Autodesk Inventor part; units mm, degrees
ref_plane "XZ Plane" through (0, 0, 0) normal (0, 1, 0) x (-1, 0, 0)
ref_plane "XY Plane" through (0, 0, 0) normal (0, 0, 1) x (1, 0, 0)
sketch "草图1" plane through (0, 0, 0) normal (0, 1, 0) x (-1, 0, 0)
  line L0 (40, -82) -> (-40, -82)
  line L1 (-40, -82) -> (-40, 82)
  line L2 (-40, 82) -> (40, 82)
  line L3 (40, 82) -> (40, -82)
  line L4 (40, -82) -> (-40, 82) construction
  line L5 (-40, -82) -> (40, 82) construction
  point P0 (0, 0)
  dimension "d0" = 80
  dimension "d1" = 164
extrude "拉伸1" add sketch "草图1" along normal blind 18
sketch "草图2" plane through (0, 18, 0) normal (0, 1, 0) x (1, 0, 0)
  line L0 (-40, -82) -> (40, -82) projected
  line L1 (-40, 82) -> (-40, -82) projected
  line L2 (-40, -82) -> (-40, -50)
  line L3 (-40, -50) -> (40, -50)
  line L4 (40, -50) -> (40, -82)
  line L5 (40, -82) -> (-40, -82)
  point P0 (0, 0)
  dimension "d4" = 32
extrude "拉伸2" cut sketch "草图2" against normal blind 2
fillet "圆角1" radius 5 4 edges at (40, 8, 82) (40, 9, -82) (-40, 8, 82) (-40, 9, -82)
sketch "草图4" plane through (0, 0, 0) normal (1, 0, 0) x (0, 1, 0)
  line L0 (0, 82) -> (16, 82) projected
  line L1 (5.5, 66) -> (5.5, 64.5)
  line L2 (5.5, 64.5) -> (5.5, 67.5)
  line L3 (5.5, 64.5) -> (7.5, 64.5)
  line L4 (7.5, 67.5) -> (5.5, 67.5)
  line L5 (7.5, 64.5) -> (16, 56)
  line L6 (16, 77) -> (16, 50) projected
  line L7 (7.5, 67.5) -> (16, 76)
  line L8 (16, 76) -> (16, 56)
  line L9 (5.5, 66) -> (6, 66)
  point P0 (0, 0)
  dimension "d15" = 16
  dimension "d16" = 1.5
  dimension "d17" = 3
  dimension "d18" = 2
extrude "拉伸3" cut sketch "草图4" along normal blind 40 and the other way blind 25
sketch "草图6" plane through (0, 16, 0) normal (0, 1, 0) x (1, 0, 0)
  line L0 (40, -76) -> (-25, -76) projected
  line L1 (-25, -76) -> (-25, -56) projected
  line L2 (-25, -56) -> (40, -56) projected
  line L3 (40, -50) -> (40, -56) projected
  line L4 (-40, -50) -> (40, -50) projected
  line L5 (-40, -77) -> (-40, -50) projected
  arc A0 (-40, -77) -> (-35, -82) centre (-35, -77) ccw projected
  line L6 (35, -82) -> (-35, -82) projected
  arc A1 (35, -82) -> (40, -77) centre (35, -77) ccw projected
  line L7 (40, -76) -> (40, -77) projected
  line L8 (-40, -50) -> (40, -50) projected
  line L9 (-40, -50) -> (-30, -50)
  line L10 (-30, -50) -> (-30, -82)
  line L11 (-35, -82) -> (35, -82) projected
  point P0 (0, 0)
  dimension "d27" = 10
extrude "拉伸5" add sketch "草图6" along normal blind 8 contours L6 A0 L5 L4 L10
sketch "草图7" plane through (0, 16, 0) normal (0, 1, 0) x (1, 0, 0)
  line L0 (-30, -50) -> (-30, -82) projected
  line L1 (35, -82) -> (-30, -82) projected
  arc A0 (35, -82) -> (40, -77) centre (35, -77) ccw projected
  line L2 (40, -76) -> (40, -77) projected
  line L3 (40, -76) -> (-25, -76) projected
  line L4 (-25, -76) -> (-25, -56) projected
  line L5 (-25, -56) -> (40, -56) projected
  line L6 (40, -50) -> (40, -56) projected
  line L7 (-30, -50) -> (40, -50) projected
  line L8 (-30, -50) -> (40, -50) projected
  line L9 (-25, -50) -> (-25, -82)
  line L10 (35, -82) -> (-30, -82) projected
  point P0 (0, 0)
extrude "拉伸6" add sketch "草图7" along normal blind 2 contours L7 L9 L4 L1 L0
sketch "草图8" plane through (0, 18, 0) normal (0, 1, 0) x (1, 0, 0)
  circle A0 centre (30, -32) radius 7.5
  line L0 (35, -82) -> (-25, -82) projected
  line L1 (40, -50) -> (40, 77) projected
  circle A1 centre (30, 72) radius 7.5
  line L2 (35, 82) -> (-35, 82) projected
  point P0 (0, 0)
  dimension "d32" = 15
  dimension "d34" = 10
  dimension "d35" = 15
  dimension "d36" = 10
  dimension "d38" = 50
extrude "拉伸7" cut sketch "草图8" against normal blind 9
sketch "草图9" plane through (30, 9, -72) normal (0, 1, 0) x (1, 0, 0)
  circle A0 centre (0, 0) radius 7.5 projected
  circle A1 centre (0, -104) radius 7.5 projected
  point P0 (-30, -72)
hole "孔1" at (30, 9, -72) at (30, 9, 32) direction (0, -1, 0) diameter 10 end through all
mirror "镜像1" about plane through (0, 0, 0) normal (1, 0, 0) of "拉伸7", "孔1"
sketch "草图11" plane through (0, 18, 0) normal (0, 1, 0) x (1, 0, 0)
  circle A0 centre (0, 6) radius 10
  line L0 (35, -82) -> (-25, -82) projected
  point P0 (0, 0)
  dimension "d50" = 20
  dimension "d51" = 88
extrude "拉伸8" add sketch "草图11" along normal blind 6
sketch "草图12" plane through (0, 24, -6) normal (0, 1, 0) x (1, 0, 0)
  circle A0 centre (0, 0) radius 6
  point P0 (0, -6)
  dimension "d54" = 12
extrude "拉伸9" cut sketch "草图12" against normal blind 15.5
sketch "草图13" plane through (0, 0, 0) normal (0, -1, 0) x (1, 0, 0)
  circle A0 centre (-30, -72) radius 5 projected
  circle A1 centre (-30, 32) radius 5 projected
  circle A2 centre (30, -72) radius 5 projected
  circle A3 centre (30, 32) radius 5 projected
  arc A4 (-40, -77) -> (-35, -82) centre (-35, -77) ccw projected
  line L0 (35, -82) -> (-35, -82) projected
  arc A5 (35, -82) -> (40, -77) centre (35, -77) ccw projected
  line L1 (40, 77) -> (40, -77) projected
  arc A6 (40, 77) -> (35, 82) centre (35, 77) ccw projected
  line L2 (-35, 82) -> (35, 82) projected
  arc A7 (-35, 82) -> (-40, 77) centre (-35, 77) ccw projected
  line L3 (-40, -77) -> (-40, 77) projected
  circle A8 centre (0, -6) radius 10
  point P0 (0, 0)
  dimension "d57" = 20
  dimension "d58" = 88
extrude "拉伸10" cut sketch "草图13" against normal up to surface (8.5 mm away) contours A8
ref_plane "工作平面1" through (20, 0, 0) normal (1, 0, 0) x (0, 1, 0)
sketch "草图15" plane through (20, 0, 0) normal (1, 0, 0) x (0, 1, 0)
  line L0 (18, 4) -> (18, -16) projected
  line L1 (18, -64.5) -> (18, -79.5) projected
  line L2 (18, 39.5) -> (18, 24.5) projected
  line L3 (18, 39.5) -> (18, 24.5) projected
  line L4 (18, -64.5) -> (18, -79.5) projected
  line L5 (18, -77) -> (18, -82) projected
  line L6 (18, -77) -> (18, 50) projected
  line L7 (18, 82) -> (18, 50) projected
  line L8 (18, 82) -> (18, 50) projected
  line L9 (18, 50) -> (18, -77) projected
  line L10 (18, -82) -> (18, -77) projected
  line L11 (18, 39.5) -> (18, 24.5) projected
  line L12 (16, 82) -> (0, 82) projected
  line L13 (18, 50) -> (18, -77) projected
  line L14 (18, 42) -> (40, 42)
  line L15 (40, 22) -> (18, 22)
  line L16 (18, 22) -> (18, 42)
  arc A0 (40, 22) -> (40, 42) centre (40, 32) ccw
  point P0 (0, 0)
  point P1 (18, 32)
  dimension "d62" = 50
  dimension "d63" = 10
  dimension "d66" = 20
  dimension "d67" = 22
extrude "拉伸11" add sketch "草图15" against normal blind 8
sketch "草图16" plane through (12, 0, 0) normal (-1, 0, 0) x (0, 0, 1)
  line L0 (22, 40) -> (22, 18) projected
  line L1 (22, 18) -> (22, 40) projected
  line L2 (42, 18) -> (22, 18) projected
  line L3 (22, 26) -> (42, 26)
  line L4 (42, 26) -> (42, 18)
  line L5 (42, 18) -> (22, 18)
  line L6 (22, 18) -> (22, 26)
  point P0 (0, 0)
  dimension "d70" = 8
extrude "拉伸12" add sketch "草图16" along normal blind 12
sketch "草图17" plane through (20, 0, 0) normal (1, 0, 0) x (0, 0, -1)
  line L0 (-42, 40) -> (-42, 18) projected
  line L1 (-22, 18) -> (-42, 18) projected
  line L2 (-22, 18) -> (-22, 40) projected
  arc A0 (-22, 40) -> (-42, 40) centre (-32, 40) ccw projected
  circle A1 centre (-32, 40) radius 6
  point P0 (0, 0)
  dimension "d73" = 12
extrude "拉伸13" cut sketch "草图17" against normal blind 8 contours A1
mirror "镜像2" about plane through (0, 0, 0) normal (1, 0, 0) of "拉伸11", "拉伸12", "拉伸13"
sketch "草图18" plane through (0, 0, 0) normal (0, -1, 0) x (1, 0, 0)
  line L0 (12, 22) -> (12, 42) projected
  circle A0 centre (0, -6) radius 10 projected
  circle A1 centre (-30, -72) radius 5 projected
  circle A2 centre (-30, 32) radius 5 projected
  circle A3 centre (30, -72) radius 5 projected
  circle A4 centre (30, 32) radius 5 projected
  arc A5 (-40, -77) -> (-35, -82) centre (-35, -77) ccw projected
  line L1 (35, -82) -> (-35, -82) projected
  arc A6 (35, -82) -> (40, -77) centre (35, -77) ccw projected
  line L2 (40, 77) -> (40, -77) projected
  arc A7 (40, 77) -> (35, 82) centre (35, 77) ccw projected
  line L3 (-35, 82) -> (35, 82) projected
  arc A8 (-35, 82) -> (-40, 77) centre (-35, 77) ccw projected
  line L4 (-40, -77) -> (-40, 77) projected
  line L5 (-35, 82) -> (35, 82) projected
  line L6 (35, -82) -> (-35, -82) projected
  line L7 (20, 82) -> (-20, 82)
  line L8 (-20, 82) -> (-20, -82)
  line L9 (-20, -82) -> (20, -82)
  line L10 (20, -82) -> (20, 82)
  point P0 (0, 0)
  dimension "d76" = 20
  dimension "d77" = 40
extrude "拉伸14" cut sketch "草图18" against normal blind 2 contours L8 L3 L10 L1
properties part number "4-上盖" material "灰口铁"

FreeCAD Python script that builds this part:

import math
import FreeCAD as App
import Part
import Sketcher


def edges_at(feature, points):
    """Names of the edges that pass closest to the given points."""
    edges = feature.Shape.Edges
    near = lambda p: min(range(len(edges)), key=lambda i: edges[i].distToShape(Part.Vertex(*p))[0])
    return sorted({f"Edge{near(p) + 1}" for p in points})


def add_polygon(sketch, points):
    """Adds a closed chain of lines whose ends are joined by coincident constraints."""
    first, n = sketch.GeometryCount, len(points)
    for a, b in zip(points, points[1:] + points[:1]):
        sketch.addGeometry(Part.LineSegment(App.Vector(*a, 0), App.Vector(*b, 0)), False)
    for i in range(n):
        sketch.addConstraint(Sketcher.Constraint("Coincident", first + i, 2, first + (i + 1) % n, 1))

doc = App.newDocument("Part")
params = doc.addObject("Spreadsheet::Sheet", "Params")
for row, (alias, value) in enumerate([
    ("sketch1_width", "80 mm"),
    ("sketch1_height", "164 mm"),
    ("pad1_length", "18 mm"),
    ("sketch2_height", "32 mm"),
    ("sketch2_width", "80 mm"),
    ("pocket1_length", "2 mm"),
    ("fillet_radius", "5 mm"),
    ("sketch3_width", "2 mm"),
    ("sketch3_height", "3 mm"),
    ("sketch3_height2", "20 mm"),
    ("pocket2_length", "40 mm"),
    ("pocket2_length2", "25 mm"),
    ("sketch4_radius", "5 mm"),
    ("sketch4_width", "10 mm"),
    ("sketch4_height", "32 mm"),
    ("pad2_length", "8 mm"),
    ("sketch5_width", "5 mm"),
    ("sketch5_height", "32 mm"),
    ("pad3_length", "2 mm"),
    ("sketch6_diameter", "15 mm"),
    ("pocket3_length", "9 mm"),
    ("sketch7_diameter", "10 mm"),
    ("hole_diameter", "10 mm"),
    ("sketch8_diameter", "20 mm"),
    ("pad4_length", "6 mm"),
    ("sketch9_diameter", "12 mm"),
    ("pocket4_length", "15.5 mm"),
    ("sketch10_diameter", "20 mm"),
    ("pocket5_length", "8.5 mm"),
    ("sketch11_radius", "10 mm"),
    ("sketch11_width", "22 mm"),
    ("pad5_length", "8 mm"),
    ("sketch12_width", "8 mm"),
    ("sketch12_height", "20 mm"),
    ("pad6_length", "12 mm"),
    ("sketch13_diameter", "12 mm"),
    ("pocket6_length", "8 mm"),
    ("sketch14_diameter", "20 mm"),
    ("sketch14_width", "40 mm"),
    ("sketch14_height", "164 mm"),
    ("pocket7_length", "2 mm"),
], start=1):
    params.set(f"A{row}", alias)
    params.set(f"B{row}", "=" + value)
    params.setAlias(f"B{row}", alias)

body = doc.addObject("PartDesign::Body", "Body")

# Sketch on XZ plane
sketch1 = doc.addObject("Sketcher::SketchObject", "Sketch")
body.addObject(sketch1)
sketch1.AttachmentSupport = (doc.XZ_Plane, [""])
sketch1.MapMode = "FlatFace"
add_polygon(sketch1, [(40, -82), (-40, -82), (-40, 82), (40, 82)])  # lines 0-3
sketch1.addConstraint([
    Sketcher.Constraint("Horizontal", 0),
    Sketcher.Constraint("Vertical", 1),
    Sketcher.Constraint("Horizontal", 2),
    Sketcher.Constraint("Vertical", 3),
    Sketcher.Constraint("Symmetric", 0, 2, 2, 2, -1, 1),
    Sketcher.Constraint("DistanceX", 0, 2, 0, 1, 80.0),
    Sketcher.Constraint("DistanceY", 1, 1, 1, 2, 164.0),
])
sketch1.setExpression("Constraints[9]", "Params.sketch1_width")
sketch1.setExpression("Constraints[10]", "Params.sketch1_height")
pad1 = doc.addObject("PartDesign::Pad", "Pad")
body.addObject(pad1)
pad1.Profile = sketch1
pad1.setExpression("Length", "Params.pad1_length")
pad1.Reversed = True

# Sketch on XZ plane
sketch2 = doc.addObject("Sketcher::SketchObject", "Sketch001")
body.addObject(sketch2)
sketch2.AttachmentSupport = (doc.XZ_Plane, [""])
sketch2.MapMode = "FlatFace"
sketch2.AttachmentOffset = App.Placement(App.Vector(0, 0, -18), App.Rotation())
add_polygon(sketch2, [(-40, 50), (-40, 82), (40, 82), (40, 50)])  # lines 0-3
sketch2.addConstraint([
    Sketcher.Constraint("Vertical", 0),
    Sketcher.Constraint("Horizontal", 1),
    Sketcher.Constraint("Vertical", 2),
    Sketcher.Constraint("Horizontal", 3),
    Sketcher.Constraint("DistanceY", 0, 1, 0, 2, 32.0),
    Sketcher.Constraint("DistanceX", 1, 1, 1, 2, 80.0),
    Sketcher.Constraint("DistanceX", 0, 2, -1, 1, 40.0),
    Sketcher.Constraint("DistanceY", -1, 1, 0, 2, 82.0),
])
sketch2.setExpression("Constraints[8]", "Params.sketch2_height")
sketch2.setExpression("Constraints[9]", "Params.sketch2_width")
pocket1 = doc.addObject("PartDesign::Pocket", "Pocket")
body.addObject(pocket1)
pocket1.Profile = sketch2
pocket1.setExpression("Length", "Params.pocket1_length")
pocket1.Reversed = True
doc.recompute()

fillet = doc.addObject("PartDesign::Fillet", "Fillet")
body.addObject(fillet)
fillet.Base = (pocket1, edges_at(pocket1, [
    (40, 8, 82),
    (40, 9, -82),
    (-40, 8, 82),
    (-40, 9, -82),
]))
fillet.setExpression("Radius", "Params.fillet_radius")

# Sketch on YZ plane
sketch3 = doc.addObject("Sketcher::SketchObject", "Sketch002")
body.addObject(sketch3)
sketch3.AttachmentSupport = (doc.YZ_Plane, [""])
sketch3.MapMode = "FlatFace"
add_polygon(sketch3, [(5.5, 67.5), (5.5, 64.5), (7.5, 64.5), (16, 56), (16, 76), (7.5, 67.5)])  # lines 0-5
sketch3.addConstraint([
    Sketcher.Constraint("Vertical", 0),
    Sketcher.Constraint("Horizontal", 1),
    Sketcher.Constraint("Vertical", 3),
    Sketcher.Constraint("Horizontal", 5),
    Sketcher.Constraint("Perpendicular", 2, 4),
    Sketcher.Constraint("Vertical", 1, 2, 4, 2),
    Sketcher.Constraint("Equal", 2, 4),
    Sketcher.Constraint("DistanceX", 1, 1, 1, 2, 2.0),
    Sketcher.Constraint("DistanceY", 0, 2, 0, 1, 3.0),
    Sketcher.Constraint("DistanceX", -1, 1, 2, 2, 16.0),
    Sketcher.Constraint("DistanceY", 3, 1, 3, 2, 20.0),
    Sketcher.Constraint("DistanceY", -1, 1, 2, 2, 56.0),
])
sketch3.setExpression("Constraints[13]", "Params.sketch3_width")
sketch3.setExpression("Constraints[14]", "Params.sketch3_height")
sketch3.setExpression("Constraints[16]", "Params.sketch3_height2")
pocket2 = doc.addObject("PartDesign::Pocket", "Pocket001")
body.addObject(pocket2)
pocket2.Profile = sketch3
pocket2.Type = "TwoLengths"
pocket2.setExpression("Length", "Params.pocket2_length")
pocket2.setExpression("Length2", "Params.pocket2_length2")
pocket2.Reversed = True

# Sketch on XZ plane
sketch4 = doc.addObject("Sketcher::SketchObject", "Sketch003")
body.addObject(sketch4)
sketch4.AttachmentSupport = (doc.XZ_Plane, [""])
sketch4.MapMode = "FlatFace"
sketch4.AttachmentOffset = App.Placement(App.Vector(0, 0, -16), App.Rotation())
sketch4.addGeometry([
    Part.LineSegment(App.Vector(-35, 82, 0), App.Vector(-30, 82, 0)),  # 0
    Part.LineSegment(App.Vector(-30, 82, 0), App.Vector(-30, 50, 0)),  # 1
    Part.LineSegment(App.Vector(-30, 50, 0), App.Vector(-40, 50, 0)),  # 2
    Part.LineSegment(App.Vector(-40, 50, 0), App.Vector(-40, 77, 0)),  # 3
    Part.ArcOfCircle(Part.Circle(App.Vector(-35, 77, 0), App.Vector(0, 0, 1), 5), math.radians(90), math.radians(180)),  # 4
], False)
sketch4.addConstraint([
    Sketcher.Constraint("Coincident", 0, 2, 1, 1),
    Sketcher.Constraint("Coincident", 1, 2, 2, 1),
    Sketcher.Constraint("Coincident", 2, 2, 3, 1),
    Sketcher.Constraint("Tangent", 3, 2, 4, 2),
    Sketcher.Constraint("Tangent", 4, 1, 0, 1),
    Sketcher.Constraint("Horizontal", 0),
    Sketcher.Constraint("Vertical", 1),
    Sketcher.Constraint("Horizontal", 2),
    Sketcher.Constraint("Vertical", 3),
    Sketcher.Constraint("Radius", 4, 5.0),
    Sketcher.Constraint("DistanceX", 2, 2, 2, 1, 10.0),
    Sketcher.Constraint("DistanceY", 1, 2, 1, 1, 32.0),
    Sketcher.Constraint("DistanceX", 4, 3, -1, 1, 35.0),
    Sketcher.Constraint("DistanceY", -1, 1, 4, 3, 77.0),
])
sketch4.setExpression("Constraints[9]", "Params.sketch4_radius")
sketch4.setExpression("Constraints[10]", "Params.sketch4_width")
sketch4.setExpression("Constraints[11]", "Params.sketch4_height")
pad2 = doc.addObject("PartDesign::Pad", "Pad001")
body.addObject(pad2)
pad2.Profile = sketch4
pad2.setExpression("Length", "Params.pad2_length")
pad2.Reversed = True

# Sketch on XZ plane
sketch5 = doc.addObject("Sketcher::SketchObject", "Sketch004")
body.addObject(sketch5)
sketch5.AttachmentSupport = (doc.XZ_Plane, [""])
sketch5.MapMode = "FlatFace"
sketch5.AttachmentOffset = App.Placement(App.Vector(0, 0, -16), App.Rotation())
add_polygon(sketch5, [(-25, 50), (-30, 50), (-30, 82), (-25, 82)])  # lines 0-3
sketch5.addConstraint([
    Sketcher.Constraint("Horizontal", 0),
    Sketcher.Constraint("Vertical", 1),
    Sketcher.Constraint("Horizontal", 2),
    Sketcher.Constraint("Vertical", 3),
    Sketcher.Constraint("DistanceX", 0, 2, 0, 1, 5.0),
    Sketcher.Constraint("DistanceY", 1, 1, 1, 2, 32.0),
    Sketcher.Constraint("DistanceX", 0, 2, -1, 1, 30.0),
    Sketcher.Constraint("DistanceY", -1, 1, 0, 2, 50.0),
])
sketch5.setExpression("Constraints[8]", "Params.sketch5_width")
sketch5.setExpression("Constraints[9]", "Params.sketch5_height")
pad3 = doc.addObject("PartDesign::Pad", "Pad002")
body.addObject(pad3)
pad3.Profile = sketch5
pad3.setExpression("Length", "Params.pad3_length")
pad3.Reversed = True

# Sketch on XZ plane
sketch6 = doc.addObject("Sketcher::SketchObject", "Sketch005")
body.addObject(sketch6)
sketch6.AttachmentSupport = (doc.XZ_Plane, [""])
sketch6.MapMode = "FlatFace"
sketch6.AttachmentOffset = App.Placement(App.Vector(0, 0, -18), App.Rotation())
sketch6.addGeometry([
    Part.Circle(App.Vector(30, 32, 0), App.Vector(0, 0, 1), 8),
    Part.Circle(App.Vector(30, -72, 0), App.Vector(0, 0, 1), 8),
], False)
sketch6.addConstraint([
    Sketcher.Constraint("Equal", 0, 1),
    Sketcher.Constraint("Vertical", 0, 3, 1, 3),
    Sketcher.Constraint("Diameter", 0, 15.0),
    Sketcher.Constraint("DistanceX", -1, 1, 0, 3, 30.0),
    Sketcher.Constraint("DistanceY", -1, 1, 0, 3, 32.0),
    Sketcher.Constraint("DistanceY", 1, 3, -1, 1, 72.0),
])
sketch6.setExpression("Constraints[2]", "Params.sketch6_diameter")
pocket3 = doc.addObject("PartDesign::Pocket", "Pocket002")
body.addObject(pocket3)
pocket3.Profile = sketch6
pocket3.setExpression("Length", "Params.pocket3_length")
pocket3.Reversed = True

# Sketch on XZ plane
sketch7 = doc.addObject("Sketcher::SketchObject", "Sketch006")
body.addObject(sketch7)
sketch7.AttachmentSupport = (doc.XZ_Plane, [""])
sketch7.MapMode = "FlatFace"
sketch7.AttachmentOffset = App.Placement(App.Vector(0, 0, -9), App.Rotation())
sketch7.addGeometry([
    Part.Circle(App.Vector(30, -72, 0), App.Vector(0, 0, 1), 5),
    Part.Circle(App.Vector(30, 32, 0), App.Vector(0, 0, 1), 5),
], False)
sketch7.addConstraint([
    Sketcher.Constraint("Equal", 0, 1),
    Sketcher.Constraint("Vertical", 0, 3, 1, 3),
    Sketcher.Constraint("Diameter", 0, 10.0),
    Sketcher.Constraint("DistanceX", -1, 1, 0, 3, 30.0),
    Sketcher.Constraint("DistanceY", 0, 3, -1, 1, 72.0),
    Sketcher.Constraint("DistanceY", -1, 1, 1, 3, 32.0),
])
sketch7.setExpression("Constraints[2]", "Params.sketch7_diameter")
doc.recompute()
hole = doc.addObject("PartDesign::Hole", "Hole")
body.addObject(hole)
hole.Profile = sketch7
hole.ThreadType = "None"
hole.setExpression("Diameter", "Params.hole_diameter")
hole.DepthType = "ThroughAll"
hole.Reversed = True
doc.recompute()

mirrored = doc.addObject("PartDesign::Mirrored", "Mirrored")
body.addObject(mirrored)
mirrored.Originals = [pocket3, hole]
mirrored.MirrorPlane = (doc.YZ_Plane, [""])
body.Tip = mirrored

# Sketch on XZ plane
sketch8 = doc.addObject("Sketcher::SketchObject", "Sketch007")
body.addObject(sketch8)
sketch8.AttachmentSupport = (doc.XZ_Plane, [""])
sketch8.MapMode = "FlatFace"
sketch8.AttachmentOffset = App.Placement(App.Vector(0, 0, -18), App.Rotation())
sketch8.addGeometry(Part.Circle(App.Vector(0, -6, 0), App.Vector(0, 0, 1), 10), False)
sketch8.addConstraint([
    Sketcher.Constraint("PointOnObject", 0, 3, -2),
    Sketcher.Constraint("Diameter", 0, 20.0),
    Sketcher.Constraint("DistanceY", 0, 3, -1, 1, 6.0),
])
sketch8.setExpression("Constraints[1]", "Params.sketch8_diameter")
pad4 = doc.addObject("PartDesign::Pad", "Pad003")
body.addObject(pad4)
pad4.Profile = sketch8
pad4.setExpression("Length", "Params.pad4_length")
pad4.Reversed = True

# Sketch on XZ plane
sketch9 = doc.addObject("Sketcher::SketchObject", "Sketch008")
body.addObject(sketch9)
sketch9.AttachmentSupport = (doc.XZ_Plane, [""])
sketch9.MapMode = "FlatFace"
sketch9.AttachmentOffset = App.Placement(App.Vector(0, 0, -24), App.Rotation())
sketch9.addGeometry(Part.Circle(App.Vector(0, -6, 0), App.Vector(0, 0, 1), 6), False)
sketch9.addConstraint([
    Sketcher.Constraint("PointOnObject", 0, 3, -2),
    Sketcher.Constraint("Diameter", 0, 12.0),
    Sketcher.Constraint("DistanceY", 0, 3, -1, 1, 6.0),
])
sketch9.setExpression("Constraints[1]", "Params.sketch9_diameter")
pocket4 = doc.addObject("PartDesign::Pocket", "Pocket003")
body.addObject(pocket4)
pocket4.Profile = sketch9
pocket4.setExpression("Length", "Params.pocket4_length")
pocket4.Reversed = True

# Sketch on XZ plane
sketch10 = doc.addObject("Sketcher::SketchObject", "Sketch009")
body.addObject(sketch10)
sketch10.AttachmentSupport = (doc.XZ_Plane, [""])
sketch10.MapMode = "FlatFace"
sketch10.addGeometry(Part.Circle(App.Vector(0, -6, 0), App.Vector(0, 0, 1), 10), False)
sketch10.addConstraint([
    Sketcher.Constraint("PointOnObject", 0, 3, -2),
    Sketcher.Constraint("Diameter", 0, 20.0),
    Sketcher.Constraint("DistanceY", 0, 3, -1, 1, 6.0),
])
sketch10.setExpression("Constraints[1]", "Params.sketch10_diameter")
pocket5 = doc.addObject("PartDesign::Pocket", "Pocket004")
body.addObject(pocket5)
pocket5.Profile = sketch10
pocket5.setExpression("Length", "Params.pocket5_length")

# Sketch on YZ plane
sketch11 = doc.addObject("Sketcher::SketchObject", "Sketch010")
body.addObject(sketch11)
sketch11.AttachmentSupport = (doc.YZ_Plane, [""])
sketch11.MapMode = "FlatFace"
sketch11.AttachmentOffset = App.Placement(App.Vector(0, 0, 20), App.Rotation())
sketch11.addGeometry([
    Part.LineSegment(App.Vector(18, 42, 0), App.Vector(18, 22, 0)),
    Part.LineSegment(App.Vector(18, 22, 0), App.Vector(40, 22, 0)),
    Part.ArcOfCircle(Part.Circle(App.Vector(40, 32, 0), App.Vector(0, 0, 1), 10), math.radians(-90), math.radians(90)),
    Part.LineSegment(App.Vector(40, 42, 0), App.Vector(18, 42, 0)),
], False)
sketch11.addConstraint([
    Sketcher.Constraint("Coincident", 0, 2, 1, 1),
    Sketcher.Constraint("Tangent", 1, 2, 2, 1),
    Sketcher.Constraint("Tangent", 2, 2, 3, 1),
    Sketcher.Constraint("Coincident", 3, 2, 0, 1),
    Sketcher.Constraint("Vertical", 0),
    Sketcher.Constraint("Horizontal", 1),
    Sketcher.Constraint("Horizontal", 3),
    Sketcher.Constraint("Radius", 2, 10.0),
    Sketcher.Constraint("DistanceX", 1, 1, 1, 2, 22.0),
    Sketcher.Constraint("DistanceY", -1, 1, 0, 2, 22.0),
    Sketcher.Constraint("DistanceX", -1, 1, 2, 3, 40.0),
])
sketch11.setExpression("Constraints[7]", "Params.sketch11_radius")
sketch11.setExpression("Constraints[8]", "Params.sketch11_width")
pad5 = doc.addObject("PartDesign::Pad", "Pad004")
body.addObject(pad5)
pad5.Profile = sketch11
pad5.setExpression("Length", "Params.pad5_length")
pad5.Reversed = True

# Sketch on YZ plane
sketch12 = doc.addObject("Sketcher::SketchObject", "Sketch011")
body.addObject(sketch12)
sketch12.AttachmentSupport = (doc.YZ_Plane, [""])
sketch12.MapMode = "FlatFace"
sketch12.AttachmentOffset = App.Placement(App.Vector(0, 0, 12), App.Rotation())
add_polygon(sketch12, [(26, 42), (26, 22), (18, 22), (18, 42)])  # lines 0-3
sketch12.addConstraint([
    Sketcher.Constraint("Vertical", 0),
    Sketcher.Constraint("Horizontal", 1),
    Sketcher.Constraint("Vertical", 2),
    Sketcher.Constraint("Horizontal", 3),
    Sketcher.Constraint("DistanceX", 1, 2, 1, 1, 8.0),
    Sketcher.Constraint("DistanceY", 0, 2, 0, 1, 20.0),
    Sketcher.Constraint("DistanceX", -1, 1, 0, 2, 26.0),
    Sketcher.Constraint("DistanceY", -1, 1, 0, 2, 22.0),
])
sketch12.setExpression("Constraints[8]", "Params.sketch12_width")
sketch12.setExpression("Constraints[9]", "Params.sketch12_height")
pad6 = doc.addObject("PartDesign::Pad", "Pad005")
body.addObject(pad6)
pad6.Profile = sketch12
pad6.setExpression("Length", "Params.pad6_length")
pad6.Reversed = True

# Sketch on YZ plane
sketch13 = doc.addObject("Sketcher::SketchObject", "Sketch012")
body.addObject(sketch13)
sketch13.AttachmentSupport = (doc.YZ_Plane, [""])
sketch13.MapMode = "FlatFace"
sketch13.AttachmentOffset = App.Placement(App.Vector(0, 0, 20), App.Rotation())
sketch13.addGeometry(Part.Circle(App.Vector(40, 32, 0), App.Vector(0, 0, 1), 6), False)
sketch13.addConstraint([
    Sketcher.Constraint("Diameter", 0, 12.0),
    Sketcher.Constraint("DistanceX", -1, 1, 0, 3, 40.0),
    Sketcher.Constraint("DistanceY", -1, 1, 0, 3, 32.0),
])
sketch13.setExpression("Constraints[0]", "Params.sketch13_diameter")
pocket6 = doc.addObject("PartDesign::Pocket", "Pocket005")
body.addObject(pocket6)
pocket6.Profile = sketch13
pocket6.setExpression("Length", "Params.pocket6_length")
doc.recompute()

mirrored2 = doc.addObject("PartDesign::Mirrored", "Mirrored001")
body.addObject(mirrored2)
mirrored2.Originals = [pad5, pad6, pocket6]
mirrored2.MirrorPlane = (doc.YZ_Plane, [""])
body.Tip = mirrored2

# Sketch on XZ plane
sketch14 = doc.addObject("Sketcher::SketchObject", "Sketch013")
body.addObject(sketch14)
sketch14.AttachmentSupport = (doc.XZ_Plane, [""])
sketch14.MapMode = "FlatFace"
add_polygon(sketch14, [(-20, 82), (-20, -82), (20, -82), (20, 82)])  # lines 0-3
sketch14.addGeometry(Part.Circle(App.Vector(0, -6, 0), App.Vector(0, 0, 1), 10), False)  # 4
sketch14.addConstraint([
    Sketcher.Constraint("Vertical", 0),
    Sketcher.Constraint("Horizontal", 1),
    Sketcher.Constraint("Vertical", 2),
    Sketcher.Constraint("Horizontal", 3),
    Sketcher.Constraint("Symmetric", 0, 2, 2, 2, -1, 1),
    Sketcher.Constraint("PointOnObject", 4, 3, -2),
    Sketcher.Constraint("Diameter", 4, 20.0),
    Sketcher.Constraint("DistanceX", 1, 1, 1, 2, 40.0),
    Sketcher.Constraint("DistanceY", 0, 2, 0, 1, 164.0),
    Sketcher.Constraint("DistanceY", 4, 3, -1, 1, 6.0),
])
sketch14.setExpression("Constraints[10]", "Params.sketch14_diameter")
sketch14.setExpression("Constraints[11]", "Params.sketch14_width")
sketch14.setExpression("Constraints[12]", "Params.sketch14_height")
pocket7 = doc.addObject("PartDesign::Pocket", "Pocket006")
body.addObject(pocket7)
pocket7.Profile = sketch14
pocket7.setExpression("Length", "Params.pocket7_length")

doc.recompute()
